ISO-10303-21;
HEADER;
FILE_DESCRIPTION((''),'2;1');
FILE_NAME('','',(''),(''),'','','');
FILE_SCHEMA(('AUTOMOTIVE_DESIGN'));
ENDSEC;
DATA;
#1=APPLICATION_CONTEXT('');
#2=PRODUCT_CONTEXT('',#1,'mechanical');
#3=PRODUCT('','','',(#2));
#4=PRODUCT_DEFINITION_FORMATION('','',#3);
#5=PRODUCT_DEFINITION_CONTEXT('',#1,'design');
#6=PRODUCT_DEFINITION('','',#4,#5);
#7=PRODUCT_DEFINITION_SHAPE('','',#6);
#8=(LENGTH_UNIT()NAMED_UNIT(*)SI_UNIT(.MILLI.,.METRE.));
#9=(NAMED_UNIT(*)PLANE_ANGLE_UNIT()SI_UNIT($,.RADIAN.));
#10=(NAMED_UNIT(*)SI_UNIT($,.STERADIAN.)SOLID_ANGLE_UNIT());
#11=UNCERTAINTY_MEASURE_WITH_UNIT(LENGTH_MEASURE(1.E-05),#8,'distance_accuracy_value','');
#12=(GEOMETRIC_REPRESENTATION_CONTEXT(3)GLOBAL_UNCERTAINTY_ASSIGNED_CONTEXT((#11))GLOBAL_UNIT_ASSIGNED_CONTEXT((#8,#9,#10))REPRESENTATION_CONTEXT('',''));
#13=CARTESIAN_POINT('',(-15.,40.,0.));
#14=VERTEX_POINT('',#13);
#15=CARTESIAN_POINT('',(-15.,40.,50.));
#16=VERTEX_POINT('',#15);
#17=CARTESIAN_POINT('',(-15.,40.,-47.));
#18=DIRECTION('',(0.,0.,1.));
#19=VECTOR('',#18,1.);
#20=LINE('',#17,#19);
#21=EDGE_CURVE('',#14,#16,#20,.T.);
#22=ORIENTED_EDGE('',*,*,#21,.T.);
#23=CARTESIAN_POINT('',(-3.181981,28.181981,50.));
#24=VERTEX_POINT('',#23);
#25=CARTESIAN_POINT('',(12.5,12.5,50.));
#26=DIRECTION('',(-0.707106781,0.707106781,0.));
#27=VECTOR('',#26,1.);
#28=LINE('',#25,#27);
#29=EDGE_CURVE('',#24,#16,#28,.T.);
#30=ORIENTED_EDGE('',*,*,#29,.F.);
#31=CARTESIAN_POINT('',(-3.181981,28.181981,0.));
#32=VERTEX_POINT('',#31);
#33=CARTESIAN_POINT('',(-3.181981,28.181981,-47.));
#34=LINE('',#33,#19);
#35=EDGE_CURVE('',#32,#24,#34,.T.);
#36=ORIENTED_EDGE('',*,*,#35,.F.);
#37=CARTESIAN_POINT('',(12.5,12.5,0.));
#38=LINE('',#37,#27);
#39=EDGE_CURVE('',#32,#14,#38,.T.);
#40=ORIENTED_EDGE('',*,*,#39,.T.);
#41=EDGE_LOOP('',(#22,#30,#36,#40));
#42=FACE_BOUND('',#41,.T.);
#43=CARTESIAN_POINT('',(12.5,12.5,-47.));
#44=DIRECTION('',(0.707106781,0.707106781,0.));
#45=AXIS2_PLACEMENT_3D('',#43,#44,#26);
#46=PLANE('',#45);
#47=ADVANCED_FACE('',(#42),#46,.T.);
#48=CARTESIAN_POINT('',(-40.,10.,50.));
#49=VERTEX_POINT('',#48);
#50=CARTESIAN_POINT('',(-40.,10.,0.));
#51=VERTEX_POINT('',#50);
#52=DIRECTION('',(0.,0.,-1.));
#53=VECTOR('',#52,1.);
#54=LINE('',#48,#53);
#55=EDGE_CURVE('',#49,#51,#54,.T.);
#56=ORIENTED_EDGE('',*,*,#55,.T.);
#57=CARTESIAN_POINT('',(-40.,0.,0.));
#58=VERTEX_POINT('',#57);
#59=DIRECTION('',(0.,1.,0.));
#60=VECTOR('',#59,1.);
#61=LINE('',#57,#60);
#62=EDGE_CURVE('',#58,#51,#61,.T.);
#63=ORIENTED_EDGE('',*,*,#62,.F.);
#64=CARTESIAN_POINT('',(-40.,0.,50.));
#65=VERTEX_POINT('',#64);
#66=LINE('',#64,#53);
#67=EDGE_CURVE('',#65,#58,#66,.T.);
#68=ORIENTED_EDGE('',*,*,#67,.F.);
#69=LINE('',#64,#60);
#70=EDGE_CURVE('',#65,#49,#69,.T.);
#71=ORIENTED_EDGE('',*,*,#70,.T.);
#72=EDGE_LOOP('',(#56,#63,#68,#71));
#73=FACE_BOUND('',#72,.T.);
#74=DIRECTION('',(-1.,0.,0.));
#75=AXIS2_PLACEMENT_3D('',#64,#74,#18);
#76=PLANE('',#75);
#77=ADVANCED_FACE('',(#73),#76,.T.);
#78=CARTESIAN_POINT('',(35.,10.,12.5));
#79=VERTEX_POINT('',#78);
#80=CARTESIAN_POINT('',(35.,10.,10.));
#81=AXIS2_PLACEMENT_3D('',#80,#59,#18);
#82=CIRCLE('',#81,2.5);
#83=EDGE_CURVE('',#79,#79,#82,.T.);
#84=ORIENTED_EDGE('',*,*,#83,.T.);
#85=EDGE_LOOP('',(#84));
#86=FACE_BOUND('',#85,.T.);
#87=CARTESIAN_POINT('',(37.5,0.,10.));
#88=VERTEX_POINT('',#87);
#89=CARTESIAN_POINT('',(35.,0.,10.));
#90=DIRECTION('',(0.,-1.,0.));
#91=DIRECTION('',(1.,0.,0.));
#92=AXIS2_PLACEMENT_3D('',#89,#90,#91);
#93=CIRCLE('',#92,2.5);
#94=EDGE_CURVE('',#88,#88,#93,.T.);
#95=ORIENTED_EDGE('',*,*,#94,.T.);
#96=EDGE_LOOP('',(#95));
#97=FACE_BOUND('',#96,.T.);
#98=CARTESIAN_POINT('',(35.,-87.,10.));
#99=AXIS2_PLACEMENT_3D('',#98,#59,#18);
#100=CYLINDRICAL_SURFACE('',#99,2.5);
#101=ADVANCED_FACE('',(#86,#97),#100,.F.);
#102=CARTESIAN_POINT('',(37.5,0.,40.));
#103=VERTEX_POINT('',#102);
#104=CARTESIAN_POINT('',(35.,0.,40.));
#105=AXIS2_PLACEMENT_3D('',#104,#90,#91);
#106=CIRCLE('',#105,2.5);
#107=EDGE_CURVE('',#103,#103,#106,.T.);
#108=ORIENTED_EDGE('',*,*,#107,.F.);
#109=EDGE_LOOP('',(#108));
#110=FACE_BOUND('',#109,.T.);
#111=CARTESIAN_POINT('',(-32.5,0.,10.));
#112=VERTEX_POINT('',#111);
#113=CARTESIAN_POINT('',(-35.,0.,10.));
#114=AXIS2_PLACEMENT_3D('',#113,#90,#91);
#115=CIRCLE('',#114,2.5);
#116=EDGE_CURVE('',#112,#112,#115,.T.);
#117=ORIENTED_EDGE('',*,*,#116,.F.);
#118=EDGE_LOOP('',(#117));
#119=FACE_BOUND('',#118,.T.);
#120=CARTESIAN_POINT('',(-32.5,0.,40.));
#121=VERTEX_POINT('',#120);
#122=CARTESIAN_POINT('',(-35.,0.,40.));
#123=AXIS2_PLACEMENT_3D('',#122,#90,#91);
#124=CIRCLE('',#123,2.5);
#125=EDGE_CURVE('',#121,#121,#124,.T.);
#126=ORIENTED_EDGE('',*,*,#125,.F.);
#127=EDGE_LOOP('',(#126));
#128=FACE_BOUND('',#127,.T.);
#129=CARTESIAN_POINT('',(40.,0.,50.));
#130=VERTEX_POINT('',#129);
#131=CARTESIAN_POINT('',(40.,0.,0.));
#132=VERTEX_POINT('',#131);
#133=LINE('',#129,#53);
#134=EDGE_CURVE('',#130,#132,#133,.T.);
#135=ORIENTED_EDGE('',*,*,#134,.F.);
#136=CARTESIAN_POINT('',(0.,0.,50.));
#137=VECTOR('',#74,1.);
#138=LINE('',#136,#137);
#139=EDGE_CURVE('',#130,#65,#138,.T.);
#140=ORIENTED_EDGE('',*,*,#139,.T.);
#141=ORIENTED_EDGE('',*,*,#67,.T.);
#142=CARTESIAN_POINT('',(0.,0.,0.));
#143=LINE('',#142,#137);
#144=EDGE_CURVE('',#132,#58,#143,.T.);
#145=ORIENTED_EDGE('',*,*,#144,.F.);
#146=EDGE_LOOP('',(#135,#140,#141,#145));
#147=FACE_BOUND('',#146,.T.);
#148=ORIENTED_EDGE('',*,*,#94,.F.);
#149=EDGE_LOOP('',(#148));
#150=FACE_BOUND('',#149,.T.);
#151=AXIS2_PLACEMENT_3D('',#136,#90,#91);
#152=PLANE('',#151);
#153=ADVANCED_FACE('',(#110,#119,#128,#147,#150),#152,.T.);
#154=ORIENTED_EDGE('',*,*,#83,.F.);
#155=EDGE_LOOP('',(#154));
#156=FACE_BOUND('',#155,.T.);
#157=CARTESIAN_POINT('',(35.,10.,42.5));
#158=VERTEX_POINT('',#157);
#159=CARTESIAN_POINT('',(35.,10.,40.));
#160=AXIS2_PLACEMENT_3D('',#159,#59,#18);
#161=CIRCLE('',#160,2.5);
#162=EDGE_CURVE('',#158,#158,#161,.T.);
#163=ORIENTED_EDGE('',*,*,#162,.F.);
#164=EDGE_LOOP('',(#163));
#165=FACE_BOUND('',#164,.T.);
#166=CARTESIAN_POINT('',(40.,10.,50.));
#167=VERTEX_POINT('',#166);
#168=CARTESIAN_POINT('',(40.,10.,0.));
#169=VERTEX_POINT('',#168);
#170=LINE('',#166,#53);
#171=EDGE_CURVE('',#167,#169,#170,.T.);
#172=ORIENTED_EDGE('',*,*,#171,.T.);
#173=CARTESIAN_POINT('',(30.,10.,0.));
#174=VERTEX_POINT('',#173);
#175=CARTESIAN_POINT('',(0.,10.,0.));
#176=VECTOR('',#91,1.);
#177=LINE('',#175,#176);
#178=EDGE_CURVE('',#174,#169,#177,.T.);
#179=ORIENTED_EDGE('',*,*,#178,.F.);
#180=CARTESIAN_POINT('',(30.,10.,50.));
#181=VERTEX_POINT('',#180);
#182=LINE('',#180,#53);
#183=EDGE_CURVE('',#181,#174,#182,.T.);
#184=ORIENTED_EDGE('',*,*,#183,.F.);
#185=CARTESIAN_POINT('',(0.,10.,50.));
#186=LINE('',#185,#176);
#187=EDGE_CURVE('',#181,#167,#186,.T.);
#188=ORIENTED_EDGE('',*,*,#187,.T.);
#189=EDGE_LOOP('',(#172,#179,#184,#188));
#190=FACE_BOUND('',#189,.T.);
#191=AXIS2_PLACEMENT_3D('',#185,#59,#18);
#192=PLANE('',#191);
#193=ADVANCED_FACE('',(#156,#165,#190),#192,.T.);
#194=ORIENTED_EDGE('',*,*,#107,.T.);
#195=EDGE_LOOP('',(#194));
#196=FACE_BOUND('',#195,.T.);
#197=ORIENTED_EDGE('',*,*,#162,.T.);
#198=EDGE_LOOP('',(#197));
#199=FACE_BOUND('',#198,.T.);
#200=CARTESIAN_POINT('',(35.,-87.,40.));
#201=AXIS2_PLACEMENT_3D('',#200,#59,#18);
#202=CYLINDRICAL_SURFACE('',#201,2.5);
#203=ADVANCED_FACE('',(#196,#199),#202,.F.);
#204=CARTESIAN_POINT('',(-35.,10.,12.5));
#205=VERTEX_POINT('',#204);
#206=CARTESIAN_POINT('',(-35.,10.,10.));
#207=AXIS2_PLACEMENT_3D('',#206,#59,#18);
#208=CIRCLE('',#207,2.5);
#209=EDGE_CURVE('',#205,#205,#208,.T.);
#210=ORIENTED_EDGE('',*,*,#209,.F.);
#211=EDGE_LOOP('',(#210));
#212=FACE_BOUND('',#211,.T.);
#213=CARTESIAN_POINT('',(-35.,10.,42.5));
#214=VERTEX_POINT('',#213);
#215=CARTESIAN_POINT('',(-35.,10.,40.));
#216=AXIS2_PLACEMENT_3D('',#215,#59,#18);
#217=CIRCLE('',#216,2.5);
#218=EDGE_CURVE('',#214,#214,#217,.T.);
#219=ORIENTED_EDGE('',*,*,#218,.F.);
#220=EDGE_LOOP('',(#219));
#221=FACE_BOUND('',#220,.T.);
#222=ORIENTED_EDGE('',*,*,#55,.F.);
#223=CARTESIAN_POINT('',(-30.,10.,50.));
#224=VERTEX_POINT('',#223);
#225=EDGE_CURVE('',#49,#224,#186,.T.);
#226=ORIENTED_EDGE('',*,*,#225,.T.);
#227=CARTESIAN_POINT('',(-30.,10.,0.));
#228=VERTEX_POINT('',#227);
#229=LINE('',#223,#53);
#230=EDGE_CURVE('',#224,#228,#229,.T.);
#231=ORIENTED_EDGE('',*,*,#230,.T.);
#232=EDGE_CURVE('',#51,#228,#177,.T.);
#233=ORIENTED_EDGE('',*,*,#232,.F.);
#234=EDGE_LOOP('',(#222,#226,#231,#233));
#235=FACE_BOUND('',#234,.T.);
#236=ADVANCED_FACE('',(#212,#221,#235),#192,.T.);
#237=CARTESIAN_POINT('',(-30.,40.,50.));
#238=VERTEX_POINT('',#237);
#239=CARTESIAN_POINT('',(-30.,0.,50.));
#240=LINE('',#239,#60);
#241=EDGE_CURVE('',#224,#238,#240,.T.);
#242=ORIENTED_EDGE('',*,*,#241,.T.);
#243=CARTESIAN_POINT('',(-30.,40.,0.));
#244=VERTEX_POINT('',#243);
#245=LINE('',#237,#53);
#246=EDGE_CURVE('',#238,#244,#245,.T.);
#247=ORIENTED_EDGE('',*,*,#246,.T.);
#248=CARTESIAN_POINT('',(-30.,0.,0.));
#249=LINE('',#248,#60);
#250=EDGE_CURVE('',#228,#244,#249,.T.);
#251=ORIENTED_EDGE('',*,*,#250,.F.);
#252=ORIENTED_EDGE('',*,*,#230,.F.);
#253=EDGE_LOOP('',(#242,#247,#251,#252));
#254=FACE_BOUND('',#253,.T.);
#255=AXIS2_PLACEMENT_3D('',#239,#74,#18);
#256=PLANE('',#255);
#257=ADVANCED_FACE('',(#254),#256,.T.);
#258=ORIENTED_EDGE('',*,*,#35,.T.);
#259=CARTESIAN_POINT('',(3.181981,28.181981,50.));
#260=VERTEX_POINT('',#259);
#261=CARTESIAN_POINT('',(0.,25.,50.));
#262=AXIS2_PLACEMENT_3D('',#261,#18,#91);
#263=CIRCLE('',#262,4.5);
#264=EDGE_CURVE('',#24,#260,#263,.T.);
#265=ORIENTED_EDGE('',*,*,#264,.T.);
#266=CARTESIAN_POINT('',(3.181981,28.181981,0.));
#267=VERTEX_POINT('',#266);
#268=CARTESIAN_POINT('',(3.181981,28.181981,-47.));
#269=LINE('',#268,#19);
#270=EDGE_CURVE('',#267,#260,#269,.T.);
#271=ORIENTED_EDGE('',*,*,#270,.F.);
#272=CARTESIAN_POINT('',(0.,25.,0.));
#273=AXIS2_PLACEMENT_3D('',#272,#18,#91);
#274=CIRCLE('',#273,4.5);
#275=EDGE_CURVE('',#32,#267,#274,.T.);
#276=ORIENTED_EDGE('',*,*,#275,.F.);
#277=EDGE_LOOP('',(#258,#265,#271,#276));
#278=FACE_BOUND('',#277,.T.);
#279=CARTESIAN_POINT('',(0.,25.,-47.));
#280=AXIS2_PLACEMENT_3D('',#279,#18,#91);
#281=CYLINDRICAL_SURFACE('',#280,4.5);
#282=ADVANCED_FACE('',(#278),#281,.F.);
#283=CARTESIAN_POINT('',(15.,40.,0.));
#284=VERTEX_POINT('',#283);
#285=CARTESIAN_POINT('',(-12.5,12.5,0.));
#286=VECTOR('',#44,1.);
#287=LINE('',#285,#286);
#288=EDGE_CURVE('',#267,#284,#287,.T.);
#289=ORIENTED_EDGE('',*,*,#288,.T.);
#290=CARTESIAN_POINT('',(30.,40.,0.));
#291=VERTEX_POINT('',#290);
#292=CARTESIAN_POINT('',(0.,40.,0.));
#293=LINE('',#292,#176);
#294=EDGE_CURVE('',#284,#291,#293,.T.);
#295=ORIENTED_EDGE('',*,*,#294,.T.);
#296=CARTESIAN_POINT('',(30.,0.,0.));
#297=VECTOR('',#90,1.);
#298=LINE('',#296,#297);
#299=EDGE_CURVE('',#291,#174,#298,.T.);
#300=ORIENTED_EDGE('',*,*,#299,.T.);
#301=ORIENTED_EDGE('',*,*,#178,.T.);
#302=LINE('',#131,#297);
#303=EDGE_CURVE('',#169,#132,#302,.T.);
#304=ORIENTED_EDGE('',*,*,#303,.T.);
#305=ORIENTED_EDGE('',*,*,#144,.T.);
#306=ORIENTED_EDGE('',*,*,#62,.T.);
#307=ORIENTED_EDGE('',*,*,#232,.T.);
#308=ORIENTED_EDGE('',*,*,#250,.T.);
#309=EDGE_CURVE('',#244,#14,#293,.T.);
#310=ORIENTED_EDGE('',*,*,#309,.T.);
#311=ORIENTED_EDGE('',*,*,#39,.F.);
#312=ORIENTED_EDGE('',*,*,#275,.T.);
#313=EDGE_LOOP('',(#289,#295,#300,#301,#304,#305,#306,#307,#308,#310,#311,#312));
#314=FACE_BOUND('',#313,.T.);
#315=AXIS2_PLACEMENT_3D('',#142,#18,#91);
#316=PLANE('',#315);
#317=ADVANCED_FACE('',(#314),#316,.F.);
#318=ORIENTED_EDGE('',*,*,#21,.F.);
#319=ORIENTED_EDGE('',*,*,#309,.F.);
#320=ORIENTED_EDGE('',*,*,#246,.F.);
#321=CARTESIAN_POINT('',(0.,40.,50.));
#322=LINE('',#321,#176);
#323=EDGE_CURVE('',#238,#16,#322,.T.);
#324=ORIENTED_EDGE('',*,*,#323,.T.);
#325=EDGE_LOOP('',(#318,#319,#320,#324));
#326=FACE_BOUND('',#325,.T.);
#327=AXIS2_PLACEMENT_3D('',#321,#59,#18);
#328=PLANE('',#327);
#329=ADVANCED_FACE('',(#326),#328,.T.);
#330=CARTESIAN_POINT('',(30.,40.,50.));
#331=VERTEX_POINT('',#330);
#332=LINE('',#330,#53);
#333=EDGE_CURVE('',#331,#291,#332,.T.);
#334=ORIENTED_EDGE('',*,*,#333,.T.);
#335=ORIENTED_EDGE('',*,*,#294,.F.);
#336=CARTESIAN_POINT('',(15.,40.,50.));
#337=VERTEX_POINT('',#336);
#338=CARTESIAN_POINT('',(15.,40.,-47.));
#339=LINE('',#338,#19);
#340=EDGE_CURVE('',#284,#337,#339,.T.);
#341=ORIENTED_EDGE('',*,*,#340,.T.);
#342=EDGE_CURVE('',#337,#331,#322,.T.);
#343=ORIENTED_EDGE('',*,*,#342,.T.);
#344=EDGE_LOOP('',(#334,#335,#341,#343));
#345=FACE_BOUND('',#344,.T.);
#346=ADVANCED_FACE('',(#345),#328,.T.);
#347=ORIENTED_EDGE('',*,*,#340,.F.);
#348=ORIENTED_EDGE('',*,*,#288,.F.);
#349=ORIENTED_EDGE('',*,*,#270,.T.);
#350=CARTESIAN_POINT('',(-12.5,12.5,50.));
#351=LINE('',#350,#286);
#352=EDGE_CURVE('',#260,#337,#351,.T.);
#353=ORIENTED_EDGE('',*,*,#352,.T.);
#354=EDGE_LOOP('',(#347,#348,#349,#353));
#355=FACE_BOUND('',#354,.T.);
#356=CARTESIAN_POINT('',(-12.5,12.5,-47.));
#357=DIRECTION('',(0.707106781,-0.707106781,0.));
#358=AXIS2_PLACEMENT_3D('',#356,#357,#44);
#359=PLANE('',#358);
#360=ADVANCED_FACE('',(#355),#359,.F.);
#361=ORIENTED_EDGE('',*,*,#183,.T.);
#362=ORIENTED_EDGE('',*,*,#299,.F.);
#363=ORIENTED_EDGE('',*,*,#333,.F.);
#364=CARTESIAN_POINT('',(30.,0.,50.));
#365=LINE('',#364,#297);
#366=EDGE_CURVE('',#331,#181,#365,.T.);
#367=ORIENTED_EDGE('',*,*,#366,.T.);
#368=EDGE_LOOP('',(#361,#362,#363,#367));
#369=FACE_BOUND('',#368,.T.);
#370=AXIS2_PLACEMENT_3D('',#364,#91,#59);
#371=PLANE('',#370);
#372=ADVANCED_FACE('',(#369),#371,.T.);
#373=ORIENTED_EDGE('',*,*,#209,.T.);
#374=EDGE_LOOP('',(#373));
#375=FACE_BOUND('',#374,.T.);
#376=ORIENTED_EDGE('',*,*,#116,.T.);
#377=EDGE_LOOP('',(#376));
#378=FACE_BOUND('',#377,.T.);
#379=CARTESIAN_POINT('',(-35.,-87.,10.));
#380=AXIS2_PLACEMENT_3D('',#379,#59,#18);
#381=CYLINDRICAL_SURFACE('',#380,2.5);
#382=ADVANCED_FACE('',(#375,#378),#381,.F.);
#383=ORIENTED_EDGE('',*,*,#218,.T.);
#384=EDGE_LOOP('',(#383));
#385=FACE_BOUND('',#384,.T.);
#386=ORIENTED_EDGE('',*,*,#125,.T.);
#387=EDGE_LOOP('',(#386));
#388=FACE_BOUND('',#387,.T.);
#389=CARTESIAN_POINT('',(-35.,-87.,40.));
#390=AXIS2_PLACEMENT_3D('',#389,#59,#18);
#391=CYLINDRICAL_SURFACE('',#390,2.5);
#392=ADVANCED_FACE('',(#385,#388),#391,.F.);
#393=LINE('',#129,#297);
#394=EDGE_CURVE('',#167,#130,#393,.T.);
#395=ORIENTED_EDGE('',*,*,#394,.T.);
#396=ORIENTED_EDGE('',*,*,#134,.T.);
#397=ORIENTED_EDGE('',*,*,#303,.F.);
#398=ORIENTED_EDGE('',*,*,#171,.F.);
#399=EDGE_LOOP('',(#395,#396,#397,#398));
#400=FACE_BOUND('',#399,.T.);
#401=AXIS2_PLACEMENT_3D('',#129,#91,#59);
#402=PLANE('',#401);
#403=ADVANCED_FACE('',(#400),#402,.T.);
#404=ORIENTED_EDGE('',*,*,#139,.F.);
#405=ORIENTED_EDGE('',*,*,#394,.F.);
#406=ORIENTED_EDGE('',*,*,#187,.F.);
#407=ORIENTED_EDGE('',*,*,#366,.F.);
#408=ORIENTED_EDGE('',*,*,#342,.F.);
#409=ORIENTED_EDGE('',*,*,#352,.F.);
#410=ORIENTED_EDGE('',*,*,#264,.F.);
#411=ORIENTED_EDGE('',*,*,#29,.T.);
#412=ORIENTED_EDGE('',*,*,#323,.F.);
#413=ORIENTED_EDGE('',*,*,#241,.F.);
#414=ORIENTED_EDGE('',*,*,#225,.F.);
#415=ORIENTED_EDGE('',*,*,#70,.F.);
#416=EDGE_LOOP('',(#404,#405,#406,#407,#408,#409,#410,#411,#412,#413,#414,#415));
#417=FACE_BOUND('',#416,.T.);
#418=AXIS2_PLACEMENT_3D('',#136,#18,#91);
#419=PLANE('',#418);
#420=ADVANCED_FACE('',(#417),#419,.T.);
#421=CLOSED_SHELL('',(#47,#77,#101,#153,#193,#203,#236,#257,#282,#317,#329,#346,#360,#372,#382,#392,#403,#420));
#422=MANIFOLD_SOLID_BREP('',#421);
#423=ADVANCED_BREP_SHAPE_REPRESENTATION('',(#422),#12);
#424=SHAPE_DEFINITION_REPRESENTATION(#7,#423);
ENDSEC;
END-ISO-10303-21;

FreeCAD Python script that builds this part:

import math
import FreeCAD as App
import Part
import Sketcher
Q = App.Units.Quantity


def add_polygon(sketch, points):
    """Adds a closed chain of lines whose ends are joined by coincident constraints."""
    first, n = sketch.GeometryCount, len(points)
    for a, b in zip(points, points[1:] + points[:1]):
        sketch.addGeometry(Part.LineSegment(App.Vector(*a, 0), App.Vector(*b, 0)), False)
    for i in range(n):
        sketch.addConstraint(Sketcher.Constraint("Coincident", first + i, 2, first + (i + 1) % n, 1))

doc = App.newDocument("Part")
body = doc.addObject("PartDesign::Body", "Body")

sketch1 = body.newObject("Sketcher::SketchObject", "Sketch")
sketch1.AttachmentSupport = (doc.getObject("XY_Plane"), [""])
sketch1.MapMode = "FlatFace"
add_polygon(sketch1, [(-40, 0), (40, 0), (40, 10), (30, 10), (30, 40), (-30, 40), (-30, 10), (-40, 10)])
sketch1.addConstraint([
    Sketcher.Constraint("Horizontal", 0),
    Sketcher.Constraint("Vertical", 1),
    Sketcher.Constraint("Horizontal", 2),
    Sketcher.Constraint("Vertical", 3),
    Sketcher.Constraint("Horizontal", 4),
    Sketcher.Constraint("Vertical", 5),
    Sketcher.Constraint("Horizontal", 6),
    Sketcher.Constraint("Vertical", 7),
    Sketcher.Constraint("Symmetric", 0, 2, 7, 2, -1, 1),
    Sketcher.Constraint("Symmetric", 2, 2, 5, 2, -2),
    Sketcher.Constraint("Equal", 6, 1),
    Sketcher.Constraint("DistanceX", 0, 1, 0, 2, Q("80 mm")),
    Sketcher.Constraint("DistanceX", 2, 2, 2, 1, Q("10 mm")),
    Sketcher.Constraint("DistanceY", 3, 1, 3, 2, Q("30 mm")),
])
pad1 = body.newObject("PartDesign::Pad", "Pad")
pad1.Profile = sketch1
pad1.Length = 50

sketch2 = body.newObject("Sketcher::SketchObject", "Sketch001")
sketch2.AttachmentSupport = (doc.getObject("XY_Plane"), [""])
sketch2.MapMode = "FlatFace"
sketch2.AttachmentOffset = App.Placement(App.Vector(0, 0, 50), App.Rotation())
sketch2.addGeometry([
    Part.ArcOfCircle(Part.Circle(App.Vector(0, 25, 0), App.Vector(0, 0, 1), 4.5), math.radians(135), math.radians(405)),
    Part.LineSegment(App.Vector(3.2, 28.2, 0), App.Vector(15, 40, 0)),
    Part.LineSegment(App.Vector(15, 40, 0), App.Vector(-15, 40, 0)),
    Part.LineSegment(App.Vector(-15, 40, 0), App.Vector(-3.2, 28.2, 0)),
], False)
sketch2.addConstraint([
    Sketcher.Constraint("Coincident", 0, 2, 1, 1),
    Sketcher.Constraint("Coincident", 1, 2, 2, 1),
    Sketcher.Constraint("Coincident", 2, 2, 3, 1),
    Sketcher.Constraint("Coincident", 3, 2, 0, 1),
    Sketcher.Constraint("Horizontal", 2),
    Sketcher.Constraint("Symmetric", 0, 2, 3, 2, -2),
    Sketcher.Constraint("Perpendicular", 1, 3),
    Sketcher.Constraint("Equal", 1, 3),
    Sketcher.Constraint("Radius", 0, Q("4.5 mm")),
    Sketcher.Constraint("DistanceX", 2, 2, 2, 1, Q("30 mm")),
    Sketcher.Constraint("DistanceY", -1, 1, 0, 3, Q("25 mm")),
    Sketcher.Constraint("DistanceY", -1, 1, 1, 2, Q("40 mm")),
])
pocket1 = body.newObject("PartDesign::Pocket", "Pocket")
pocket1.Profile = sketch2
pocket1.Length = 97

sketch3 = body.newObject("Sketcher::SketchObject", "Sketch002")
sketch3.AttachmentSupport = (doc.getObject("XZ_Plane"), [""])
sketch3.MapMode = "FlatFace"
sketch3.AttachmentOffset = App.Placement(App.Vector(0, 0, -10), App.Rotation())
sketch3.addGeometry([
    Part.Circle(App.Vector(-35, 10, 0), App.Vector(0, 0, 1), 2.5),
    Part.Circle(App.Vector(-35, 40, 0), App.Vector(0, 0, 1), 2.5),
], False)
sketch3.addConstraint([
    Sketcher.Constraint("Equal", 0, 1),
    Sketcher.Constraint("Vertical", 0, 3, 1, 3),
    Sketcher.Constraint("Diameter", 0, Q("5 mm")),
    Sketcher.Constraint("DistanceX", 0, 3, -1, 1, Q("35 mm")),
    Sketcher.Constraint("DistanceY", -1, 1, 0, 3, Q("10 mm")),
    Sketcher.Constraint("DistanceY", -1, 1, 1, 3, Q("40 mm")),
])
pocket2 = body.newObject("PartDesign::Pocket", "Pocket001")
pocket2.Profile = sketch3
pocket2.Length = 97
pocket2.Reversed = True

sketch4 = body.newObject("Sketcher::SketchObject", "Sketch003")
sketch4.AttachmentSupport = (doc.getObject("XZ_Plane"), [""])
sketch4.MapMode = "FlatFace"
sketch4.AttachmentOffset = App.Placement(App.Vector(0, 0, -10), App.Rotation())
sketch4.addGeometry([
    Part.Circle(App.Vector(35, 10, 0), App.Vector(0, 0, 1), 2.5),
    Part.Circle(App.Vector(35, 40, 0), App.Vector(0, 0, 1), 2.5),
], False)
sketch4.addConstraint([
    Sketcher.Constraint("Equal", 0, 1),
    Sketcher.Constraint("Vertical", 0, 3, 1, 3),
    Sketcher.Constraint("Diameter", 0, Q("5 mm")),
    Sketcher.Constraint("DistanceX", -1, 1, 0, 3, Q("35 mm")),
    Sketcher.Constraint("DistanceY", -1, 1, 0, 3, Q("10 mm")),
    Sketcher.Constraint("DistanceY", -1, 1, 1, 3, Q("40 mm")),
])
pocket3 = body.newObject("PartDesign::Pocket", "Pocket002")
pocket3.Profile = sketch4
pocket3.Length = 97
pocket3.Reversed = True

doc.recompute()
